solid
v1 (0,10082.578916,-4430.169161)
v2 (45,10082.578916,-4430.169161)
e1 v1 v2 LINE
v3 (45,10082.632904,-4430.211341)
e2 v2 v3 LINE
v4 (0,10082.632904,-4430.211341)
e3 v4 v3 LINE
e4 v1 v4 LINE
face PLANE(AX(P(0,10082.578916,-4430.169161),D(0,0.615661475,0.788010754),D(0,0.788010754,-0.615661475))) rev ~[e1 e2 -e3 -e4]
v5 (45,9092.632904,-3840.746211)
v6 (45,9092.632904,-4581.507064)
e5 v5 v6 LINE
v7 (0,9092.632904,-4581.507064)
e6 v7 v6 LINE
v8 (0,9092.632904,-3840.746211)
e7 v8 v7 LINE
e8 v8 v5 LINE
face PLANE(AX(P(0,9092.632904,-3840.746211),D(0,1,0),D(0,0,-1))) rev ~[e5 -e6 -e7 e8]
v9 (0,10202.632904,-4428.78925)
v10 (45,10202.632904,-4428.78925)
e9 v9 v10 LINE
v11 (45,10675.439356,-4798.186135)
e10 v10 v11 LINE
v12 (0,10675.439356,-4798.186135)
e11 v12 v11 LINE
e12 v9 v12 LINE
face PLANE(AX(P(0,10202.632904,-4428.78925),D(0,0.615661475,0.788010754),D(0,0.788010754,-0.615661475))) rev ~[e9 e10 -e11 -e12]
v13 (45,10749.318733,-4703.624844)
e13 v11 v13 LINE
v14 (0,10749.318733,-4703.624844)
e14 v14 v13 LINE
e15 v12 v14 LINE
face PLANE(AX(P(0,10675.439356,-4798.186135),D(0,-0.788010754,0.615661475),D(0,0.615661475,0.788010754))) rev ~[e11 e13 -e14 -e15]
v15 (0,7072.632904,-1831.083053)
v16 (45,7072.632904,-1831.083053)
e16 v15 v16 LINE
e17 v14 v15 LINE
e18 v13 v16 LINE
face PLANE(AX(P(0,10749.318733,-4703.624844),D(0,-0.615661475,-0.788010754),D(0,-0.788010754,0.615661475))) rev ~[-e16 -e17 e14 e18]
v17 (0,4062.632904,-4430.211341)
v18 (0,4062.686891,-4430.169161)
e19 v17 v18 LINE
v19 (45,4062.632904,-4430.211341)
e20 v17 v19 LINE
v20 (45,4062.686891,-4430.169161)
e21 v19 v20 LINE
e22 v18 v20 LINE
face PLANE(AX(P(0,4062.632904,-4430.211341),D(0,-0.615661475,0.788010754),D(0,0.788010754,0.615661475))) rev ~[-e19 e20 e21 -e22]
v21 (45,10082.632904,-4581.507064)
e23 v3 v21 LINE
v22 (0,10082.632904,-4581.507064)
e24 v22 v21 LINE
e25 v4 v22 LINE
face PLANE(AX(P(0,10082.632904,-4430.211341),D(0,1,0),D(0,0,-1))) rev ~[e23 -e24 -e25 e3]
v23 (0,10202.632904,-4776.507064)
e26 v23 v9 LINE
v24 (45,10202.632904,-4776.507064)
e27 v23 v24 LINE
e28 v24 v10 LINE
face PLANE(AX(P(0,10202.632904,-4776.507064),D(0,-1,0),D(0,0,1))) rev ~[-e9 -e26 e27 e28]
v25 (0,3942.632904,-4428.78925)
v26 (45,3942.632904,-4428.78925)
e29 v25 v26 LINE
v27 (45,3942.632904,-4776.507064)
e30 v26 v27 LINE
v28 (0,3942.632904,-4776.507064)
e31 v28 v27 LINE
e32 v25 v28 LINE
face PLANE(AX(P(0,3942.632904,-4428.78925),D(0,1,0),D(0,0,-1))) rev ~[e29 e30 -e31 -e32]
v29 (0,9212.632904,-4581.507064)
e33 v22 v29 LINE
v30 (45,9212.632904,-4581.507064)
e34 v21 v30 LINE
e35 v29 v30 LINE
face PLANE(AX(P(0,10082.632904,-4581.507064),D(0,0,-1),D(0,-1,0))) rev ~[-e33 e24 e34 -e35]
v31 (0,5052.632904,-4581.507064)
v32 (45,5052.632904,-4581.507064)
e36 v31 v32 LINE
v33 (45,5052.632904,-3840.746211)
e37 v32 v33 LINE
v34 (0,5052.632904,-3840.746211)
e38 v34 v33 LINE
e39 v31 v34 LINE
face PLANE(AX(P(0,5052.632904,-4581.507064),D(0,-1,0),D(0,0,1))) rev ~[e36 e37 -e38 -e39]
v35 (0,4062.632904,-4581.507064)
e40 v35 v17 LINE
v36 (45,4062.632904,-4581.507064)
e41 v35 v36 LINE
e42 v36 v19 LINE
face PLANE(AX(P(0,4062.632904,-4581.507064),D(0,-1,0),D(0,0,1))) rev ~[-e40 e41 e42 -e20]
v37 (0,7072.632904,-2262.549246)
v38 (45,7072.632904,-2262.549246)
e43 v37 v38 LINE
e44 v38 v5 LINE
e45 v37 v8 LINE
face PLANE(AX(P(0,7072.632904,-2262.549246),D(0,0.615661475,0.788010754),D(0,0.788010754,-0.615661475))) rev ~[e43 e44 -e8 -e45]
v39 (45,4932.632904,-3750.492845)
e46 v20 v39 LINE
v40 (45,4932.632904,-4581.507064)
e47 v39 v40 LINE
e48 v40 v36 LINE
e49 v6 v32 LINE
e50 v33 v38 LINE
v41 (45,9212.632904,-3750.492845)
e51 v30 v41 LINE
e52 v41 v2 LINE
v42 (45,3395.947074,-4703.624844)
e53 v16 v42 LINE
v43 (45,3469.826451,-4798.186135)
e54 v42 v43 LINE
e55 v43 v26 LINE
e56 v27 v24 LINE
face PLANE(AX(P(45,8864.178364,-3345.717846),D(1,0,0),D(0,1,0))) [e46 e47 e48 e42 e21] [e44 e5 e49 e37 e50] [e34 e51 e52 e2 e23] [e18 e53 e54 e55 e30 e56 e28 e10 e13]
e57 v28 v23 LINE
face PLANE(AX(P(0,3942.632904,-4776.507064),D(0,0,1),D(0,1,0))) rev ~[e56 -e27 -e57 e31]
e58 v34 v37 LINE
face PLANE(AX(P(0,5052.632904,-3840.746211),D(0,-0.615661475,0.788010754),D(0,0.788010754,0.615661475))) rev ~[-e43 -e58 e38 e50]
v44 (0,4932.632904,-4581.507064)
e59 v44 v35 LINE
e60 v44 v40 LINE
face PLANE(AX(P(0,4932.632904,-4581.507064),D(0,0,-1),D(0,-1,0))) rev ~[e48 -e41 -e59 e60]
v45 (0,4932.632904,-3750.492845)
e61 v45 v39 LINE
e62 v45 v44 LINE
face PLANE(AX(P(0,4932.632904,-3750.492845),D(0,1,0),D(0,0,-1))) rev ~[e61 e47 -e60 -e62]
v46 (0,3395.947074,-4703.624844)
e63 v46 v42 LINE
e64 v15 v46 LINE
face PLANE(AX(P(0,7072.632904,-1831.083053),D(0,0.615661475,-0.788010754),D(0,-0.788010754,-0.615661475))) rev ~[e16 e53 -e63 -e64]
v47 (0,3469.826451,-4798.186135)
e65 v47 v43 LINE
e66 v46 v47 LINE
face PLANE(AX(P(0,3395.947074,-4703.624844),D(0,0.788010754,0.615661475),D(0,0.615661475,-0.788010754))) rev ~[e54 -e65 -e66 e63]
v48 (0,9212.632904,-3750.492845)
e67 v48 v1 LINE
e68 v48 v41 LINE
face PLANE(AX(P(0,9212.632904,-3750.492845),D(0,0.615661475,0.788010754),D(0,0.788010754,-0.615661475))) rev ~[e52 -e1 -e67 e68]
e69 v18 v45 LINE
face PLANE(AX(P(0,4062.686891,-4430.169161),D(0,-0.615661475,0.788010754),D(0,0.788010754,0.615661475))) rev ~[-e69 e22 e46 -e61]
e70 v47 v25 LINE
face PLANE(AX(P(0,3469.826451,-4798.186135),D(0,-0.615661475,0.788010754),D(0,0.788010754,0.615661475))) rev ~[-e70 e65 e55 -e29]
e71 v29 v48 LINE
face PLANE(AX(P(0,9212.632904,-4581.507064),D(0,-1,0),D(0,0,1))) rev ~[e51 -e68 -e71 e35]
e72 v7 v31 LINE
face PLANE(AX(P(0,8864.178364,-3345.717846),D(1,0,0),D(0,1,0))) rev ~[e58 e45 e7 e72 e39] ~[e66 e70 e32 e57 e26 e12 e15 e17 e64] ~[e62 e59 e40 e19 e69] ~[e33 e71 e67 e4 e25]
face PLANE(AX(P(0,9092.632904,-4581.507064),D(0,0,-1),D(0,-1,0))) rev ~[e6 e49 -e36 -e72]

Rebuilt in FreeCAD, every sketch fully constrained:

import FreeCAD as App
import Part
import Sketcher

V = App.Vector
Q = App.Units.Quantity


def add_polygon(sketch, points):
    """Adds a closed chain of lines whose ends are joined by coincident constraints."""
    first, n = sketch.GeometryCount, len(points)
    for a, b in zip(points, points[1:] + points[:1]):
        sketch.addGeometry(Part.LineSegment(App.Vector(*a, 0), App.Vector(*b, 0)), False)
    for i in range(n):
        sketch.addConstraint(Sketcher.Constraint("Coincident", first + i, 2, first + (i + 1) % n, 1))

doc = App.newDocument("Part")
params = doc.addObject("Spreadsheet::Sheet", "Params")
for row, (alias, value) in enumerate([
    ("sketch1_width", "6260 mm"),
    ("sketch1_width2", "4040 mm"),
    ("sketch1_width3", "870 mm"),
    ("sketch1_length", "600 mm"),
    ("sketch1_length2", "120 mm"),
    ("pad1_length", "45 mm"),
], start=1):
    params.set(f"A{row}", alias)
    params.set(f"B{row}", "=" + value)
    params.setAlias(f"B{row}", alias)

body = doc.addObject("PartDesign::Body", "Body")

# Sketch on YZ plane
sketch1 = body.newObject("Sketcher::SketchObject", "Sketch")
sketch1.AttachmentSupport = (doc.getObject("YZ_Plane"), [""])
sketch1.MapMode = "FlatFace"
add_polygon(sketch1, [(10202.632904, -4428.78925), (10675.439356, -4798.186135), (10749.318733, -4703.624844), (7072.632904, -1831.083053), (3395.947074, -4703.624844), (3469.826451, -4798.186135), (3942.632904, -4428.78925), (3942.632904, -4776.507064), (10202.632904, -4776.507064)])  # lines 0-8
add_polygon(sketch1, [(7072.632904, -2262.549246), (9092.632904, -3840.746211), (9092.632904, -4581.507064), (5052.632904, -4581.507064), (5052.632904, -3840.746211)])  # lines 9-13
add_polygon(sketch1, [(9212.632904, -3750.492845), (10082.578916, -4430.169161), (10082.632904, -4430.211341), (10082.632904, -4581.507064), (9212.632904, -4581.507064)])  # lines 14-18
add_polygon(sketch1, [(4062.632904, -4581.507064), (4062.632904, -4430.211341), (4062.686891, -4430.169161), (4932.632904, -3750.492845), (4932.632904, -4581.507064)])  # lines 19-23
sketch1.addConstraint([
    Sketcher.Constraint("Vertical", 6),
    Sketcher.Constraint("Horizontal", 7),
    Sketcher.Constraint("Vertical", 8),
    Sketcher.Constraint("Vertical", 10),
    Sketcher.Constraint("Horizontal", 11),
    Sketcher.Constraint("Vertical", 12),
    Sketcher.Constraint("Vertical", 16),
    Sketcher.Constraint("Horizontal", 17),
    Sketcher.Constraint("Vertical", 18),
    Sketcher.Constraint("Vertical", 19),
    Sketcher.Constraint("Vertical", 22),
    Sketcher.Constraint("Horizontal", 23),
    Sketcher.Constraint("Perpendicular", 0, 1),
    Sketcher.Constraint("Perpendicular", 1, 2),
    Sketcher.Constraint("Perpendicular", 3, 4),
    Sketcher.Constraint("Perpendicular", 4, 5),
    Sketcher.Constraint("Parallel", 2, 9),
    Sketcher.Constraint("Parallel", 5, 13),
    Sketcher.Constraint("Parallel", 9, 14),
    Sketcher.Constraint("Parallel", 14, 15),
    Sketcher.Constraint("Parallel", 13, 20),
    Sketcher.Constraint("Parallel", 13, 21),
    Sketcher.Constraint("Horizontal", 1, 2, 3, 2),
    Sketcher.Constraint("Horizontal", 0, 2, 4, 2),
    Sketcher.Constraint("Horizontal", 5, 2, 8, 2),
    Sketcher.Constraint("Horizontal", 9, 2, 12, 2),
    Sketcher.Constraint("Horizontal", 11, 2, 16, 2),
    Sketcher.Constraint("Horizontal", 15, 2, 19, 2),
    Sketcher.Constraint("Horizontal", 14, 2, 20, 2),
    Sketcher.Constraint("Horizontal", 18, 2, 21, 2),
    Sketcher.Constraint("Horizontal", 17, 2, 22, 2),
    Sketcher.Constraint("Vertical", 2, 2, 13, 2),
    Sketcher.Constraint("Equal", 17, 23),
    Sketcher.Constraint("DistanceX", 7, 1, 7, 2, 6260.0),
    Sketcher.Constraint("DistanceX", 11, 2, 11, 1, 4040.0),
    Sketcher.Constraint("DistanceX", 17, 2, 17, 1, 870.0),
    Sketcher.Constraint("Angle", 0, Q("-38 deg")),
    Sketcher.Constraint("Distance", 0, 600.0),
    Sketcher.Constraint("Distance", 1, 120.0),
    Sketcher.Constraint("DistanceY", 7, 2, 10, 2, 195.0),
    Sketcher.Constraint("DistanceX", 15, 2, 8, 2, 120.0),
    Sketcher.Constraint("DistanceX", 5, 2, 19, 2, 120.0),
    Sketcher.Constraint("DistanceY", 18, 1, 18, 2, 831.014218),
    Sketcher.Constraint("Distance", 15, 0.068511),
    Sketcher.Constraint("DistanceY", 6, 2, 6, 1, 347.717814),
    Sketcher.Constraint("DistanceY", 10, 2, 10, 1, 740.760852),
    Sketcher.Constraint("DistanceX", -1, 1, 4, 2, 3469.826451),
    Sketcher.Constraint("DistanceY", 5, 2, -1, 1, 4428.78925),
])
sketch1.setExpression("Constraints[57]", "Params.sketch1_width")
sketch1.setExpression("Constraints[58]", "Params.sketch1_width2")
sketch1.setExpression("Constraints[59]", "Params.sketch1_width3")
sketch1.setExpression("Constraints[61]", "Params.sketch1_length")
sketch1.setExpression("Constraints[62]", "Params.sketch1_length2")
pad1 = body.newObject("PartDesign::Pad", "Pad")
pad1.Profile = sketch1
pad1.setExpression("Length", "Params.pad1_length")

doc.recompute()
